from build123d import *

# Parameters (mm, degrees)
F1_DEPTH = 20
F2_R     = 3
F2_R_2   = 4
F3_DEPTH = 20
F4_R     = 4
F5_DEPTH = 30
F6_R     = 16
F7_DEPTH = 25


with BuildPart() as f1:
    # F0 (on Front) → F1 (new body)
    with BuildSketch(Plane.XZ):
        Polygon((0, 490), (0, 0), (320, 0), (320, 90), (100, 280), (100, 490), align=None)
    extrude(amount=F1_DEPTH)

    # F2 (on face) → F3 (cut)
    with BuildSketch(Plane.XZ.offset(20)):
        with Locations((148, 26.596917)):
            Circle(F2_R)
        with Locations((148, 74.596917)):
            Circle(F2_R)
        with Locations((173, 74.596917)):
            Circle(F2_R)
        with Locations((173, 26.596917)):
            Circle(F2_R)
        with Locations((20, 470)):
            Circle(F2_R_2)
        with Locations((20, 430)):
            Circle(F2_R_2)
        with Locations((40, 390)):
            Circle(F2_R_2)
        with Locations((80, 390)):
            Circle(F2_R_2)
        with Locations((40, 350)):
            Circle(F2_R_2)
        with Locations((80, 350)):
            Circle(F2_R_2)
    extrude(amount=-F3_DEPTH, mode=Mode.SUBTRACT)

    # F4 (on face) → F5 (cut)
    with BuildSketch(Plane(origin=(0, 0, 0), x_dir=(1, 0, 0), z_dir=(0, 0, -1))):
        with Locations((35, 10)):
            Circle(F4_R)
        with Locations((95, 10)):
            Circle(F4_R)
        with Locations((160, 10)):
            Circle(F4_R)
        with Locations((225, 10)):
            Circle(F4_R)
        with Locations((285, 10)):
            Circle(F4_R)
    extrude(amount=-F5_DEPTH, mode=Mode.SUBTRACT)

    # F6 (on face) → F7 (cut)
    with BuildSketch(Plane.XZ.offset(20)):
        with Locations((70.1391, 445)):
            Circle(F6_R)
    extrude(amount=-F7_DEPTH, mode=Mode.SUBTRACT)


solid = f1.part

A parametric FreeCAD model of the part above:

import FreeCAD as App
import Part
import Sketcher
Q = App.Units.Quantity

doc = App.newDocument("Part")
body = doc.addObject("PartDesign::Body", "Body")

# Sketch on XZ plane
sketch1 = body.newObject("Sketcher::SketchObject", "Sketch")
sketch1.AttachmentSupport = (doc.getObject("XZ_Plane"), [""])
sketch1.MapMode = "FlatFace"
sketch1.addGeometry(Part.LineSegment(App.Vector(0, 490, 0), App.Vector(0, 0, 0)), False)
sketch1.addGeometry(Part.LineSegment(App.Vector(0, 0, 0), App.Vector(320, 0, 0)), False)
sketch1.addGeometry(Part.LineSegment(App.Vector(320, 0, 0), App.Vector(320, 90, 0)), False)
sketch1.addGeometry(Part.LineSegment(App.Vector(320, 90, 0), App.Vector(100, 280, 0)), False)
sketch1.addGeometry(Part.LineSegment(App.Vector(100, 280, 0), App.Vector(100, 490, 0)), False)
sketch1.addGeometry(Part.LineSegment(App.Vector(100, 490, 0), App.Vector(0, 490, 0)), False)
sketch1.addConstraint(Sketcher.Constraint("Coincident", 0, 2, 1, 1))
sketch1.addConstraint(Sketcher.Constraint("Coincident", 1, 2, 2, 1))
sketch1.addConstraint(Sketcher.Constraint("Coincident", 2, 2, 3, 1))
sketch1.addConstraint(Sketcher.Constraint("Coincident", 3, 2, 4, 1))
sketch1.addConstraint(Sketcher.Constraint("Coincident", 4, 2, 5, 1))
sketch1.addConstraint(Sketcher.Constraint("Coincident", 5, 2, 0, 1))
sketch1.addConstraint(Sketcher.Constraint("Vertical", 0))
sketch1.addConstraint(Sketcher.Constraint("Horizontal", 1))
sketch1.addConstraint(Sketcher.Constraint("Vertical", 2))
sketch1.addConstraint(Sketcher.Constraint("Vertical", 4))
sketch1.addConstraint(Sketcher.Constraint("Horizontal", 5))
sketch1.addConstraint(Sketcher.Constraint("Coincident", 0, 2, -1, 1))
sketch1.addConstraint(Sketcher.Constraint("DistanceX", 1, 1, 1, 2, Q("320 mm")))
sketch1.addConstraint(Sketcher.Constraint("DistanceX", 5, 2, 5, 1, Q("100 mm")))
sketch1.addConstraint(Sketcher.Constraint("DistanceY", 0, 2, 0, 1, Q("490 mm")))
sketch1.addConstraint(Sketcher.Constraint("DistanceY", 2, 1, 2, 2, Q("90 mm")))
sketch1.addConstraint(Sketcher.Constraint("DistanceY", 4, 1, 4, 2, Q("210 mm")))
pad1 = body.newObject("PartDesign::Pad", "Pad")
pad1.Profile = sketch1
pad1.Length = 20

# Sketch on XZ plane
sketch2 = body.newObject("Sketcher::SketchObject", "Sketch001")
sketch2.AttachmentSupport = (doc.getObject("XZ_Plane"), [""])
sketch2.MapMode = "FlatFace"
sketch2.AttachmentOffset = App.Placement(App.Vector(0, 0, 20), App.Rotation())
sketch2.addGeometry(Part.Circle(App.Vector(148, 26.596917, 0), App.Vector(0, 0, 1), 3), False)
sketch2.addGeometry(Part.Circle(App.Vector(148, 74.596917, 0), App.Vector(0, 0, 1), 3), False)
sketch2.addGeometry(Part.Circle(App.Vector(173, 74.596917, 0), App.Vector(0, 0, 1), 3), False)
sketch2.addGeometry(Part.Circle(App.Vector(173, 26.596917, 0), App.Vector(0, 0, 1), 3), False)
sketch2.addGeometry(Part.Circle(App.Vector(20, 470, 0), App.Vector(0, 0, 1), 4), False)
sketch2.addGeometry(Part.Circle(App.Vector(20, 430, 0), App.Vector(0, 0, 1), 4), False)
sketch2.addGeometry(Part.Circle(App.Vector(40, 390, 0), App.Vector(0, 0, 1), 4), False)
sketch2.addGeometry(Part.Circle(App.Vector(80, 390, 0), App.Vector(0, 0, 1), 4), False)
sketch2.addGeometry(Part.Circle(App.Vector(40, 350, 0), App.Vector(0, 0, 1), 4), False)
sketch2.addGeometry(Part.Circle(App.Vector(80, 350, 0), App.Vector(0, 0, 1), 4), False)
sketch2.addConstraint(Sketcher.Constraint("Equal", 0, 1))
sketch2.addConstraint(Sketcher.Constraint("Equal", 1, 2))
sketch2.addConstraint(Sketcher.Constraint("Equal", 2, 3))
sketch2.addConstraint(Sketcher.Constraint("Equal", 4, 5))
sketch2.addConstraint(Sketcher.Constraint("Equal", 5, 6))
sketch2.addConstraint(Sketcher.Constraint("Equal", 6, 7))
sketch2.addConstraint(Sketcher.Constraint("Equal", 7, 8))
sketch2.addConstraint(Sketcher.Constraint("Equal", 8, 9))
sketch2.addConstraint(Sketcher.Constraint("Horizontal", 1, 3, 2, 3))
sketch2.addConstraint(Sketcher.Constraint("Horizontal", 0, 3, 3, 3))
sketch2.addConstraint(Sketcher.Constraint("Horizontal", 6, 3, 7, 3))
sketch2.addConstraint(Sketcher.Constraint("Horizontal", 8, 3, 9, 3))
sketch2.addConstraint(Sketcher.Constraint("Vertical", 0, 3, 1, 3))
sketch2.addConstraint(Sketcher.Constraint("Vertical", 2, 3, 3, 3))
sketch2.addConstraint(Sketcher.Constraint("Vertical", 4, 3, 5, 3))
sketch2.addConstraint(Sketcher.Constraint("Vertical", 6, 3, 8, 3))
sketch2.addConstraint(Sketcher.Constraint("Vertical", 7, 3, 9, 3))
sketch2.addConstraint(Sketcher.Constraint("Diameter", 0, Q("6 mm")))
sketch2.addConstraint(Sketcher.Constraint("Diameter", 4, Q("8 mm")))
sketch2.addConstraint(Sketcher.Constraint("DistanceX", -1, 1, 0, 3, Q("148 mm")))
sketch2.addConstraint(Sketcher.Constraint("DistanceX", -1, 1, 2, 3, Q("173 mm")))
sketch2.addConstraint(Sketcher.Constraint("DistanceX", -1, 1, 4, 3, Q("20 mm")))
sketch2.addConstraint(Sketcher.Constraint("DistanceY", -1, 1, 4, 3, Q("470 mm")))
sketch2.addConstraint(Sketcher.Constraint("DistanceY", -1, 1, 5, 3, Q("430 mm")))
sketch2.addConstraint(Sketcher.Constraint("DistanceX", -1, 1, 6, 3, Q("40 mm")))
sketch2.addConstraint(Sketcher.Constraint("DistanceY", -1, 1, 6, 3, Q("390 mm")))
sketch2.addConstraint(Sketcher.Constraint("DistanceX", -1, 1, 7, 3, Q("80 mm")))
sketch2.addConstraint(Sketcher.Constraint("DistanceY", -1, 1, 8, 3, Q("350 mm")))
sketch2.addConstraint(Sketcher.Constraint("DistanceY", 0, 3, 1, 3, Q("48 mm")))
sketch2.addConstraint(Sketcher.Constraint("DistanceY", -1, 1, 0, 3, Q("26.596917 mm")))
pocket1 = body.newObject("PartDesign::Pocket", "Pocket")
pocket1.Profile = sketch2
pocket1.Length = 20

# Sketch on XY plane
sketch3 = body.newObject("Sketcher::SketchObject", "Sketch002")
sketch3.AttachmentSupport = (doc.getObject("XY_Plane"), [""])
sketch3.MapMode = "FlatFace"
sketch3.addGeometry(Part.Circle(App.Vector(35, -10, 0), App.Vector(0, 0, 1), 4), False)
sketch3.addGeometry(Part.Circle(App.Vector(95, -10, 0), App.Vector(0, 0, 1), 4), False)
sketch3.addGeometry(Part.Circle(App.Vector(160, -10, 0), App.Vector(0, 0, 1), 4), False)
sketch3.addGeometry(Part.Circle(App.Vector(225, -10, 0), App.Vector(0, 0, 1), 4), False)
sketch3.addGeometry(Part.Circle(App.Vector(285, -10, 0), App.Vector(0, 0, 1), 4), False)
sketch3.addConstraint(Sketcher.Constraint("Equal", 0, 1))
sketch3.addConstraint(Sketcher.Constraint("Equal", 1, 2))
sketch3.addConstraint(Sketcher.Constraint("Equal", 2, 3))
sketch3.addConstraint(Sketcher.Constraint("Equal", 3, 4))
sketch3.addConstraint(Sketcher.Constraint("Horizontal", 0, 3, 1, 3))
sketch3.addConstraint(Sketcher.Constraint("Horizontal", 1, 3, 2, 3))
sketch3.addConstraint(Sketcher.Constraint("Horizontal", 2, 3, 3, 3))
sketch3.addConstraint(Sketcher.Constraint("Horizontal", 3, 3, 4, 3))
sketch3.addConstraint(Sketcher.Constraint("Diameter", 0, Q("8 mm")))
sketch3.addConstraint(Sketcher.Constraint("DistanceX", -1, 1, 0, 3, Q("35 mm")))
sketch3.addConstraint(Sketcher.Constraint("DistanceY", 0, 3, -1, 1, Q("10 mm")))
sketch3.addConstraint(Sketcher.Constraint("DistanceX", -1, 1, 1, 3, Q("95 mm")))
sketch3.addConstraint(Sketcher.Constraint("DistanceX", -1, 1, 2, 3, Q("160 mm")))
sketch3.addConstraint(Sketcher.Constraint("DistanceX", -1, 1, 3, 3, Q("225 mm")))
sketch3.addConstraint(Sketcher.Constraint("DistanceX", -1, 1, 4, 3, Q("285 mm")))
pocket2 = body.newObject("PartDesign::Pocket", "Pocket001")
pocket2.Profile = sketch3
pocket2.Length = 30
pocket2.Reversed = True

# Sketch on XZ plane
sketch4 = body.newObject("Sketcher::SketchObject", "Sketch003")
sketch4.AttachmentSupport = (doc.getObject("XZ_Plane"), [""])
sketch4.MapMode = "FlatFace"
sketch4.AttachmentOffset = App.Placement(App.Vector(0, 0, 20), App.Rotation())
sketch4.addGeometry(Part.Circle(App.Vector(70.1391, 445, 0), App.Vector(0, 0, 1), 16), False)
sketch4.addConstraint(Sketcher.Constraint("Diameter", 0, Q("32 mm")))
sketch4.addConstraint(Sketcher.Constraint("DistanceY", -1, 1, 0, 3, Q("445 mm")))
sketch4.addConstraint(Sketcher.Constraint("DistanceX", -1, 1, 0, 3, Q("70.1391 mm")))
pocket3 = body.newObject("PartDesign::Pocket", "Pocket002")
pocket3.Profile = sketch4
pocket3.Length = 25

doc.recompute()
